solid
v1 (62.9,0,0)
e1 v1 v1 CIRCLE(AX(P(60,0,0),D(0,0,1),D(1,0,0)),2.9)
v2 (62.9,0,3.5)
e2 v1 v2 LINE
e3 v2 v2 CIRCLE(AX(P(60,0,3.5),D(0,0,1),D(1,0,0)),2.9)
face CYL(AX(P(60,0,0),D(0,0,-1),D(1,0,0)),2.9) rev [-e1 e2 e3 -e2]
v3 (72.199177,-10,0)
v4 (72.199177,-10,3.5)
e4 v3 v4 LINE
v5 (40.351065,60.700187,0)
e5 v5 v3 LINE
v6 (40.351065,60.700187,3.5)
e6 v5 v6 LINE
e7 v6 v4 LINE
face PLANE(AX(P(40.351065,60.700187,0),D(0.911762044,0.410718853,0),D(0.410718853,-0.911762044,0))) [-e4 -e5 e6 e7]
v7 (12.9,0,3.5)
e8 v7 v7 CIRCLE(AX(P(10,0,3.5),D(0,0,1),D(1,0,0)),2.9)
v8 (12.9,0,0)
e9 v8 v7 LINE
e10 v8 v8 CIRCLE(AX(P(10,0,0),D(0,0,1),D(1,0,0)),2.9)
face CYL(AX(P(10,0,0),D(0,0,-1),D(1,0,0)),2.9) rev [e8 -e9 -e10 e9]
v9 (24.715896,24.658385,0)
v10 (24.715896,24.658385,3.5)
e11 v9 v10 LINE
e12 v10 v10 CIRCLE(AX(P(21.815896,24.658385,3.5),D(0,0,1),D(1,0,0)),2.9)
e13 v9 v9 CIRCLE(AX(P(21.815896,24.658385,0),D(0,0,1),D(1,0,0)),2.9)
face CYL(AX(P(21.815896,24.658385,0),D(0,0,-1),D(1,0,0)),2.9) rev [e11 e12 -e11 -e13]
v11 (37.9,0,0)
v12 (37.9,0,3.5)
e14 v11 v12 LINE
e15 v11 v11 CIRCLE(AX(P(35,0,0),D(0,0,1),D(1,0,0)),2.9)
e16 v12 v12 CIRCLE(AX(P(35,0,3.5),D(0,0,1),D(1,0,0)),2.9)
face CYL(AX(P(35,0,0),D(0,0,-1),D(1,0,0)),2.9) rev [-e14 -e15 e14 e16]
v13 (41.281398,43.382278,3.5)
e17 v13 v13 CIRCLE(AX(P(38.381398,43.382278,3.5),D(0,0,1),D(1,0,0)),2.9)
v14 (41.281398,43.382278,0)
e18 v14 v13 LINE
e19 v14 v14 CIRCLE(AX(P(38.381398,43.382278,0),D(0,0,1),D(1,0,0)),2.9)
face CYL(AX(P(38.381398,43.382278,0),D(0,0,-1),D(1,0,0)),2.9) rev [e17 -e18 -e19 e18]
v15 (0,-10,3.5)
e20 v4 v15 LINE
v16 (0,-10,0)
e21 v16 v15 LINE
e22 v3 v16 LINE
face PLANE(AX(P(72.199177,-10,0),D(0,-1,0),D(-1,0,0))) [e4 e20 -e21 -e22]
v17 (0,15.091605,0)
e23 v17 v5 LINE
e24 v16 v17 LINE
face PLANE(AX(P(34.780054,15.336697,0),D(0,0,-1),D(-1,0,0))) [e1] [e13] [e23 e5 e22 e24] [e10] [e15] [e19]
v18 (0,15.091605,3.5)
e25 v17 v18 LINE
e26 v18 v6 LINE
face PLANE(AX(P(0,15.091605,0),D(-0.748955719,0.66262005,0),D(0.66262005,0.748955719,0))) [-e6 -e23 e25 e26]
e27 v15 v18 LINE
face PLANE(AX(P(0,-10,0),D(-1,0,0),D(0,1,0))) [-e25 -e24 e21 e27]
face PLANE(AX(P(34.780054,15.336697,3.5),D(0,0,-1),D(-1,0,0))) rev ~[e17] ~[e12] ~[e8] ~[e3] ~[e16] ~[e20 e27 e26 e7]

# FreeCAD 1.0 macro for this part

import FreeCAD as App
import Part
import Sketcher
Q = App.Units.Quantity


def add_polygon(sketch, points):
    """Adds a closed chain of lines whose ends are joined by coincident constraints."""
    first, n = sketch.GeometryCount, len(points)
    for a, b in zip(points, points[1:] + points[:1]):
        sketch.addGeometry(Part.LineSegment(App.Vector(*a, 0), App.Vector(*b, 0)), False)
    for i in range(n):
        sketch.addConstraint(Sketcher.Constraint("Coincident", first + i, 2, first + (i + 1) % n, 1))

doc = App.newDocument("Part")
body = doc.addObject("PartDesign::Body", "Body")

# Sketch on XY plane
sketch1 = body.newObject("Sketcher::SketchObject", "Sketch")
sketch1.AttachmentSupport = (doc.getObject("XY_Plane"), [""])
sketch1.MapMode = "FlatFace"
add_polygon(sketch1, [(0, 15.1), (0, -10), (72.2, -10), (40.4, 60.7)])  # lines 0-3
sketch1.addGeometry(Part.Circle(App.Vector(60, 0, 0), App.Vector(0, 0, 1), 2.9), False)  # 4
sketch1.addGeometry(Part.Circle(App.Vector(35, 0, 0), App.Vector(0, 0, 1), 2.9), False)  # 5
sketch1.addGeometry(Part.Circle(App.Vector(10, 0, 0), App.Vector(0, 0, 1), 2.9), False)  # 6
sketch1.addGeometry(Part.Circle(App.Vector(38.4, 43.4, 0), App.Vector(0, 0, 1), 2.9), False)  # 7
sketch1.addGeometry(Part.Circle(App.Vector(21.8, 24.7, 0), App.Vector(0, 0, 1), 2.9), False)  # 8
sketch1.addConstraint([
    Sketcher.Constraint("Vertical", 0),
    Sketcher.Constraint("Horizontal", 1),
    Sketcher.Constraint("Equal", 4, 5),
    Sketcher.Constraint("Equal", 5, 6),
    Sketcher.Constraint("Equal", 6, 7),
    Sketcher.Constraint("Equal", 7, 8),
    Sketcher.Constraint("PointOnObject", 4, 3, -1),
    Sketcher.Constraint("PointOnObject", 5, 3, -1),
    Sketcher.Constraint("PointOnObject", 6, 3, -1),
    Sketcher.Constraint("PointOnObject", 0, 2, -2),
    Sketcher.Constraint("Diameter", 4, 5.8),
    Sketcher.Constraint("DistanceX", -1, 1, 4, 3, 60.0),
    Sketcher.Constraint("DistanceX", -1, 1, 5, 3, 35.0),
    Sketcher.Constraint("DistanceX", -1, 1, 6, 3, 10.0),
    Sketcher.Constraint("DistanceY", 0, 2, -1, 1, 10.0),
    Sketcher.Constraint("Angle", 3, Q("-131.5 deg")),
    Sketcher.Constraint("Angle", 2, Q("114.25 deg")),
    Sketcher.Constraint("DistanceX", 8, 3, 7, 3, 16.565502),
    Sketcher.Constraint("DistanceX", 1, 1, 1, 2, 72.199177),
    Sketcher.Constraint("DistanceY", 0, 2, 0, 1, 25.091605),
    Sketcher.Constraint("DistanceX", 8, 3, 1, 2, 50.383281),
    Sketcher.Constraint("DistanceY", 7, 3, 2, 2, 17.317909),
    Sketcher.Constraint("DistanceY", 3, 2, 8, 3, 9.56678),
])
pad1 = body.newObject("PartDesign::Pad", "Pad")
pad1.Profile = sketch1
pad1.Length = 3.5

doc.recompute()
